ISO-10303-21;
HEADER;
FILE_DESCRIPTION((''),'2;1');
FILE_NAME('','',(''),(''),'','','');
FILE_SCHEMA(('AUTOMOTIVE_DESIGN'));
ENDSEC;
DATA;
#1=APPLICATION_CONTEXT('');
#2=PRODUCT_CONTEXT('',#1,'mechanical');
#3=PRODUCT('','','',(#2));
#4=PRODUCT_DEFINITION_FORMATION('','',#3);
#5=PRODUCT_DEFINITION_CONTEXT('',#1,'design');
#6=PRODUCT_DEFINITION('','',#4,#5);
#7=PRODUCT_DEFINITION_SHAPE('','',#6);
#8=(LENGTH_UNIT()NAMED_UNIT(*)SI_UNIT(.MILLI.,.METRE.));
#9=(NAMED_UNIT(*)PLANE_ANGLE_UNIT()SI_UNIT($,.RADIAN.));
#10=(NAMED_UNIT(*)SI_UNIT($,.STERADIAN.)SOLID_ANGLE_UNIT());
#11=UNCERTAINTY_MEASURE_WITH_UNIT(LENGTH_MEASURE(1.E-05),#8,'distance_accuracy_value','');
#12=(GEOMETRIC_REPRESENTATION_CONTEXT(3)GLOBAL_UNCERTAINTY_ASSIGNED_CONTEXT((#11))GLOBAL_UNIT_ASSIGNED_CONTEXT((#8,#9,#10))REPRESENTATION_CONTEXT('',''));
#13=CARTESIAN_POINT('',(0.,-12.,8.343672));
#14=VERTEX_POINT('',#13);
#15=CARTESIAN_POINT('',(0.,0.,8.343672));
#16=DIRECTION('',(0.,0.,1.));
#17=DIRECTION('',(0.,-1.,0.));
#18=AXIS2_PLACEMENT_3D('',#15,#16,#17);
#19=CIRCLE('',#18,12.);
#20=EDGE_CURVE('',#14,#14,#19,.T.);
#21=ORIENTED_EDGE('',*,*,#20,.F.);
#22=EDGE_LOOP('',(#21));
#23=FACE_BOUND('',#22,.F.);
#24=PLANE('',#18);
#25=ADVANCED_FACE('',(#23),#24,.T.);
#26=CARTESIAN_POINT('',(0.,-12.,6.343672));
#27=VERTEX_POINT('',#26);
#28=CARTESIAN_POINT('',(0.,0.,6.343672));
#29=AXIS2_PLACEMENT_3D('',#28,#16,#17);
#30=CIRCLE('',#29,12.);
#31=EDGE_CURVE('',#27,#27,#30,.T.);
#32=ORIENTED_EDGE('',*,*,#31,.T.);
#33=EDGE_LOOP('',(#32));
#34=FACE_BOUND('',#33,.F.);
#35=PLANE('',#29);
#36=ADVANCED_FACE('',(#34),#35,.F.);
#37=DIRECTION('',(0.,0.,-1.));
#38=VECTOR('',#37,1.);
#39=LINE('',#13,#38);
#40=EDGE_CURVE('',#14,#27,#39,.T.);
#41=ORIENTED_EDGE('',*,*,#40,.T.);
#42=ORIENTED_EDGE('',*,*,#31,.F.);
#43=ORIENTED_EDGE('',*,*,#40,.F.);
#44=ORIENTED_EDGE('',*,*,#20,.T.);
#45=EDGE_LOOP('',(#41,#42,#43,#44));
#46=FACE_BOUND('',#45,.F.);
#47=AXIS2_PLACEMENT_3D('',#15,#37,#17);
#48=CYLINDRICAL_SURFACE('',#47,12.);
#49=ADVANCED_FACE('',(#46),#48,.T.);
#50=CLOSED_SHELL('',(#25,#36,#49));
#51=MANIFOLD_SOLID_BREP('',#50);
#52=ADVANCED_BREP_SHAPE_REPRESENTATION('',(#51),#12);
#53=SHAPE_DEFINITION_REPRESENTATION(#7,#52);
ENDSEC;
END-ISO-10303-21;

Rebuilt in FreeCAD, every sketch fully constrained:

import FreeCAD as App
import Part
import Sketcher
Q = App.Units.Quantity

doc = App.newDocument("Part")
params = doc.addObject("Spreadsheet::Sheet", "Params")
for row, (alias, value) in enumerate([
    ("sketch1_width", "12 mm"),
    ("sketch1_height", "2 mm"),
    ("revolution_angle", "360 deg"),
], start=1):
    params.set(f"A{row}", alias)
    params.set(f"B{row}", "=" + value)
    params.setAlias(f"B{row}", alias)

body = doc.addObject("PartDesign::Body", "Body")

# Sketch on YZ plane
sketch1 = doc.addObject("Sketcher::SketchObject", "Sketch")
body.addObject(sketch1)
sketch1.AttachmentSupport = (doc.YZ_Plane, [""])
sketch1.MapMode = "FlatFace"
sketch1.addGeometry(Part.LineSegment(App.Vector(-12, 6.3, 0), App.Vector(0, 6.3, 0)), False)
sketch1.addGeometry(Part.LineSegment(App.Vector(0, 6.3, 0), App.Vector(0, 8.3, 0)), False)
sketch1.addGeometry(Part.LineSegment(App.Vector(0, 8.3, 0), App.Vector(-12, 8.3, 0)), False)
sketch1.addGeometry(Part.LineSegment(App.Vector(-12, 8.3, 0), App.Vector(-12, 6.3, 0)), False)
sketch1.addConstraint(Sketcher.Constraint("Coincident", 0, 2, 1, 1))
sketch1.addConstraint(Sketcher.Constraint("Coincident", 1, 2, 2, 1))
sketch1.addConstraint(Sketcher.Constraint("Coincident", 2, 2, 3, 1))
sketch1.addConstraint(Sketcher.Constraint("Coincident", 3, 2, 0, 1))
sketch1.addConstraint(Sketcher.Constraint("Horizontal", 0))
sketch1.addConstraint(Sketcher.Constraint("Vertical", 1))
sketch1.addConstraint(Sketcher.Constraint("Horizontal", 2))
sketch1.addConstraint(Sketcher.Constraint("Vertical", 3))
sketch1.addConstraint(Sketcher.Constraint("PointOnObject", 0, 2, -2))
sketch1.addConstraint(Sketcher.Constraint("DistanceX", 0, 1, 0, 2, Q("12 mm")))
sketch1.addConstraint(Sketcher.Constraint("DistanceY", 1, 1, 1, 2, Q("2 mm")))
sketch1.addConstraint(Sketcher.Constraint("DistanceY", -1, 1, 0, 2, Q("6.343672 mm")))
sketch1.setExpression("Constraints[9]", "Params.sketch1_width")
sketch1.setExpression("Constraints[10]", "Params.sketch1_height")
revolution = doc.addObject("PartDesign::Revolution", "Revolution")
body.addObject(revolution)
revolution.Profile = sketch1
revolution.ReferenceAxis = (sketch1, ["V_Axis"])
revolution.setExpression("Angle", "Params.revolution_angle")

doc.recompute()
